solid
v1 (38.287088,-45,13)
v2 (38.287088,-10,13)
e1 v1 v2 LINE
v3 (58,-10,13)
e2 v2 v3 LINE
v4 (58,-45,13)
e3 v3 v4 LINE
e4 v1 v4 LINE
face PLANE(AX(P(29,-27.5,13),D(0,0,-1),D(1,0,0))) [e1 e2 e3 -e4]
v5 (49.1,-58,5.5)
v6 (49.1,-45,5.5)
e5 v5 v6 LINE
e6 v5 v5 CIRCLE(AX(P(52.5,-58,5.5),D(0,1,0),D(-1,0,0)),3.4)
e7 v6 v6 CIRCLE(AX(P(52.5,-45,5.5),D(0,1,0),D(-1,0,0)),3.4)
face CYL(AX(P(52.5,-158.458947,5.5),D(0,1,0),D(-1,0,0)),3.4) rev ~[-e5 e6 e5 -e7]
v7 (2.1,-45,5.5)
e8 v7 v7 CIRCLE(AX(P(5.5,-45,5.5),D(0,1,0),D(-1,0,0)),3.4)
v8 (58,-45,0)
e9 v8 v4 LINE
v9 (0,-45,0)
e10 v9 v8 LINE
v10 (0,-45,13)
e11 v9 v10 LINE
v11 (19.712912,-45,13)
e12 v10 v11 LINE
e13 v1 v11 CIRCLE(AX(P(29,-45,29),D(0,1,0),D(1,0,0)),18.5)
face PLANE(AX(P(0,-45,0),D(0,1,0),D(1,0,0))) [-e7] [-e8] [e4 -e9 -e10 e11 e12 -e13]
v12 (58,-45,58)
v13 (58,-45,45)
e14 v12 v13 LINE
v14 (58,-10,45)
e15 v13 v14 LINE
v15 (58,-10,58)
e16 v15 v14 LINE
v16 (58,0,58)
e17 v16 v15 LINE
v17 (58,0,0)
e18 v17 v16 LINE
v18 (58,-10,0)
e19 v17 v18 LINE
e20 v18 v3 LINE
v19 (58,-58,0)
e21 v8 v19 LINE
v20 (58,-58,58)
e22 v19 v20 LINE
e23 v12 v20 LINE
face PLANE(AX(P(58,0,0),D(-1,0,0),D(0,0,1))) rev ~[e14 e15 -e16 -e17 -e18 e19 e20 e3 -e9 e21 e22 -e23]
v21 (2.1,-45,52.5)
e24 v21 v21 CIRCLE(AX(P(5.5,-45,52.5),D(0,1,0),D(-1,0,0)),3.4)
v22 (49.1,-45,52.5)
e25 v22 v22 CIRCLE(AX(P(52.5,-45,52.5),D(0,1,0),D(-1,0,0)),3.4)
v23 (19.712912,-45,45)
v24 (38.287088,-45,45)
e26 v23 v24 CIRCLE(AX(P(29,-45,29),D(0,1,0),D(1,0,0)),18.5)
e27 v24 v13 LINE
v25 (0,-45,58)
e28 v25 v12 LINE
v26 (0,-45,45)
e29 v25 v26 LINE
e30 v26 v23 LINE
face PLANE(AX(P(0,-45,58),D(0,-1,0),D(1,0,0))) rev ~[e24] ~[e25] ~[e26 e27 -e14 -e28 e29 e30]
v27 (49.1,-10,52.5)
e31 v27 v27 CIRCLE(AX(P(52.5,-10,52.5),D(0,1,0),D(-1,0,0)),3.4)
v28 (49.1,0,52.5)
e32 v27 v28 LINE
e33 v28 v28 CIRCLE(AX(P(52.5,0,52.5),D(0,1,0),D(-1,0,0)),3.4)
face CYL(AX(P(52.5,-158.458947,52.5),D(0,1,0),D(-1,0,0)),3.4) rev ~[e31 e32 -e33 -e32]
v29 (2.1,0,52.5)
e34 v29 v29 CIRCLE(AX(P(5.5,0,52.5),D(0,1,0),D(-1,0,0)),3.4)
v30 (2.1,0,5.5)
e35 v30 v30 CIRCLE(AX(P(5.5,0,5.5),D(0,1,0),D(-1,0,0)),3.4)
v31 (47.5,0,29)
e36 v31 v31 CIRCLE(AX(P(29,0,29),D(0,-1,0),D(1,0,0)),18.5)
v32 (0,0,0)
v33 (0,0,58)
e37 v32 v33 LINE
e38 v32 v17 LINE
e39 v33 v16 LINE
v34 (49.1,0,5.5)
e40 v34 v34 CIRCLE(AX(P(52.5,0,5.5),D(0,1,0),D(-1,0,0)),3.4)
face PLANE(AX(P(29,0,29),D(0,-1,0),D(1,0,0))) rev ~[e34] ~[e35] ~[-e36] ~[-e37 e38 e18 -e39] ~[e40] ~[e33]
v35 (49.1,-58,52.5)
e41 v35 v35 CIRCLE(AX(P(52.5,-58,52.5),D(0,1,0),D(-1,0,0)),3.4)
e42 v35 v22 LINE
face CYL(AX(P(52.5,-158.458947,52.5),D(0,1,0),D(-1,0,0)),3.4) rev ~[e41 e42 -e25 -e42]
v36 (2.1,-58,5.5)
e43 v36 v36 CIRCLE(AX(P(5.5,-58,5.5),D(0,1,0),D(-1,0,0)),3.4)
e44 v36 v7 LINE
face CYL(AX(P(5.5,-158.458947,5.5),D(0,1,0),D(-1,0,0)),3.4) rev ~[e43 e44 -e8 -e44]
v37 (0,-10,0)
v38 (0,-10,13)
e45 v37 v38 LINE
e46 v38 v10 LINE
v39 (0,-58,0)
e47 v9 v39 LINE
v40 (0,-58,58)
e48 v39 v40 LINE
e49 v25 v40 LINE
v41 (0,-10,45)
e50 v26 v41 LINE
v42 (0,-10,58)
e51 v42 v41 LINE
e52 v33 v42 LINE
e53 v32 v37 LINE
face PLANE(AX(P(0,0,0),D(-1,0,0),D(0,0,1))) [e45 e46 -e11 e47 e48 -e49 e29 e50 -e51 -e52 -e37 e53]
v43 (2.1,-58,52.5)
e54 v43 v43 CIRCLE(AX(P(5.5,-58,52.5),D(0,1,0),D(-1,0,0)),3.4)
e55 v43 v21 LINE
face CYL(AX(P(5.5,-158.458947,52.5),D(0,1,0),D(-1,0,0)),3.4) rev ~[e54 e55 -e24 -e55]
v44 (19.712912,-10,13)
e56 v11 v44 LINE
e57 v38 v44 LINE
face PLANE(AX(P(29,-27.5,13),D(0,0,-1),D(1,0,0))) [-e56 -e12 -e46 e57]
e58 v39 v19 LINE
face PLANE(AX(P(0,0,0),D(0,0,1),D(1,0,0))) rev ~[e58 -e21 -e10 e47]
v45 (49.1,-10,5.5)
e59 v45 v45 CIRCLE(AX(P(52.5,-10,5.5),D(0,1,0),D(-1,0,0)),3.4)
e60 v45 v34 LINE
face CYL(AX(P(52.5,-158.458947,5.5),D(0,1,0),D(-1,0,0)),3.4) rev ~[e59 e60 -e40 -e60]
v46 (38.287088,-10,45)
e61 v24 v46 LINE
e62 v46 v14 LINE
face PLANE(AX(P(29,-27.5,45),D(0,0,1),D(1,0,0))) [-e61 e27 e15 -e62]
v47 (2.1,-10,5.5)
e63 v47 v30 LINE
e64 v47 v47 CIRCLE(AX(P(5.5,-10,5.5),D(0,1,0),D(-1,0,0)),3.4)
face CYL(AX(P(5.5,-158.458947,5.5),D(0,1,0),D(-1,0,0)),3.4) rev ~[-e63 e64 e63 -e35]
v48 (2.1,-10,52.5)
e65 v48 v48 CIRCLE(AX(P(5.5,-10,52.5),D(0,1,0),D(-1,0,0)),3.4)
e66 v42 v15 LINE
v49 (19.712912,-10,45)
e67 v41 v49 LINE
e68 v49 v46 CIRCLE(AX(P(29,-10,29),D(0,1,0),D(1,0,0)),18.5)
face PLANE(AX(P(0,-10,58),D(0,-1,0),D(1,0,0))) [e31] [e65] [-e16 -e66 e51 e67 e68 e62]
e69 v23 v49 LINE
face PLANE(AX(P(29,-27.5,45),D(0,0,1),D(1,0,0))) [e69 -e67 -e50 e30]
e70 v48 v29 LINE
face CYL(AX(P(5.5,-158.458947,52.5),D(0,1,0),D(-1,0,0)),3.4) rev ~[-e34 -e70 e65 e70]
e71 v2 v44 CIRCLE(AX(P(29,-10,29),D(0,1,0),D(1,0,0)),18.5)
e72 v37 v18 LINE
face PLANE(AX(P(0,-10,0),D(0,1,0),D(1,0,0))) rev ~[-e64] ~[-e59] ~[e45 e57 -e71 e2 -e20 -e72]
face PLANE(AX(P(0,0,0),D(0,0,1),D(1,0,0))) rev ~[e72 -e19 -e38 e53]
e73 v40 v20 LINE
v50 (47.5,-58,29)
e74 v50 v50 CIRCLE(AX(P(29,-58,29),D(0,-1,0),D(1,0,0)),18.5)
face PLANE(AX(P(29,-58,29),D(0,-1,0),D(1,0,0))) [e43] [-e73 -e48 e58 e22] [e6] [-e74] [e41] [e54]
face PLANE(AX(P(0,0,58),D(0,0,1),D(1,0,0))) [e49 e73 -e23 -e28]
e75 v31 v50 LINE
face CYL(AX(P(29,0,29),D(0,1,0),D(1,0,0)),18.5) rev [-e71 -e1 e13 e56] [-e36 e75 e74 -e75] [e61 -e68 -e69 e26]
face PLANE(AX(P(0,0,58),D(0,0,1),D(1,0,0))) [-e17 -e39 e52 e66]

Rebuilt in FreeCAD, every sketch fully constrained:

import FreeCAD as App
import Part
import Sketcher
from FreeCAD import Vector
Q = App.Units.Quantity


def add_polygon(sketch, points):
    """Adds a closed chain of lines whose ends are joined by coincident constraints."""
    first, n = sketch.GeometryCount, len(points)
    for a, b in zip(points, points[1:] + points[:1]):
        sketch.addGeometry(Part.LineSegment(App.Vector(*a, 0), App.Vector(*b, 0)), False)
    for i in range(n):
        sketch.addConstraint(Sketcher.Constraint("Coincident", first + i, 2, first + (i + 1) % n, 1))

doc = App.newDocument("Part")
body = doc.addObject("PartDesign::Body", "Body")

# Sketch on XZ plane
sketch1 = body.newObject("Sketcher::SketchObject", "Sketch")
sketch1.AttachmentSupport = (doc.getObject("XZ_Plane"), [""])
sketch1.MapMode = "FlatFace"
add_polygon(sketch1, [(0, 58), (0, 0), (58, 0), (58, 58)])  # lines 0-3
sketch1.addGeometry(Part.Circle(Vector(29, 29, 0), Vector(0, 0, 1), 18.5), False)  # 4
sketch1.addConstraint([
    Sketcher.Constraint("Vertical", 0),
    Sketcher.Constraint("Horizontal", 1),
    Sketcher.Constraint("Vertical", 2),
    Sketcher.Constraint("Horizontal", 3),
    Sketcher.Constraint("Coincident", 0, 2, -1, 1),
    Sketcher.Constraint("Equal", 3, 0),
    Sketcher.Constraint("Diameter", 4, Q("37 mm")),
    Sketcher.Constraint("DistanceX", 1, 1, 1, 2, Q("58 mm")),
    Sketcher.Constraint("DistanceX", -1, 1, 4, 3, Q("29 mm")),
    Sketcher.Constraint("DistanceY", -1, 1, 4, 3, Q("29 mm")),
])
pad1 = body.newObject("PartDesign::Pad", "Pad")
pad1.Profile = sketch1
pad1.Length = 58

# Sketch on XY plane
sketch2 = body.newObject("Sketcher::SketchObject", "Sketch001")
sketch2.AttachmentSupport = (doc.getObject("XY_Plane"), [""])
sketch2.MapMode = "FlatFace"
sketch2.AttachmentOffset = App.Placement(Vector(0, 0, 58), App.Rotation())
add_polygon(sketch2, [(0, -10), (0, -45), (58, -45), (58, -10)])  # lines 0-3
sketch2.addConstraint([
    Sketcher.Constraint("Vertical", 0),
    Sketcher.Constraint("Horizontal", 1),
    Sketcher.Constraint("Vertical", 2),
    Sketcher.Constraint("Horizontal", 3),
    Sketcher.Constraint("PointOnObject", 0, 2, -2),
    Sketcher.Constraint("DistanceX", 1, 1, 1, 2, Q("58 mm")),
    Sketcher.Constraint("DistanceY", 0, 2, 0, 1, Q("35 mm")),
    Sketcher.Constraint("DistanceY", 0, 2, -1, 1, Q("45 mm")),
])
pocket1 = body.newObject("PartDesign::Pocket", "Pocket")
pocket1.Profile = sketch2
pocket1.Length = 13

# Sketch on XY plane
sketch3 = body.newObject("Sketcher::SketchObject", "Sketch002")
sketch3.AttachmentSupport = (doc.getObject("XY_Plane"), [""])
sketch3.MapMode = "FlatFace"
add_polygon(sketch3, [(0, -45), (0, -10), (58, -10), (58, -45)])  # lines 0-3
sketch3.addConstraint([
    Sketcher.Constraint("Vertical", 0),
    Sketcher.Constraint("Horizontal", 1),
    Sketcher.Constraint("Vertical", 2),
    Sketcher.Constraint("Horizontal", 3),
    Sketcher.Constraint("PointOnObject", 0, 2, -2),
    Sketcher.Constraint("DistanceX", 1, 1, 1, 2, Q("58 mm")),
    Sketcher.Constraint("DistanceY", 0, 1, 0, 2, Q("35 mm")),
    Sketcher.Constraint("DistanceY", 0, 2, -1, 1, Q("10 mm")),
])
pocket2 = body.newObject("PartDesign::Pocket", "Pocket001")
pocket2.Profile = sketch3
pocket2.Length = 13
pocket2.Reversed = True

# Sketch on XZ plane
sketch4 = body.newObject("Sketcher::SketchObject", "Sketch003")
sketch4.AttachmentSupport = (doc.getObject("XZ_Plane"), [""])
sketch4.MapMode = "FlatFace"
sketch4.AttachmentOffset = App.Placement(Vector(0, 0, 58), App.Rotation())
sketch4.addGeometry([
    Part.Circle(Vector(5.5, 52.5, 0), Vector(0, 0, 1), 3.4),
    Part.Circle(Vector(52.5, 52.5, 0), Vector(0, 0, 1), 3.4),
    Part.Circle(Vector(5.5, 5.5, 0), Vector(0, 0, 1), 3.4),
    Part.Circle(Vector(52.5, 5.5, 0), Vector(0, 0, 1), 3.4),
], False)
sketch4.addConstraint([
    Sketcher.Constraint("Equal", 0, 1),
    Sketcher.Constraint("Equal", 1, 2),
    Sketcher.Constraint("Equal", 2, 3),
    Sketcher.Constraint("Horizontal", 0, 3, 1, 3),
    Sketcher.Constraint("Horizontal", 2, 3, 3, 3),
    Sketcher.Constraint("Vertical", 0, 3, 2, 3),
    Sketcher.Constraint("Vertical", 1, 3, 3, 3),
    Sketcher.Constraint("Diameter", 0, Q("6.8 mm")),
    Sketcher.Constraint("DistanceX", 0, 3, 1, 3, Q("47 mm")),
    Sketcher.Constraint("DistanceY", 2, 3, 0, 3, Q("47 mm")),
    Sketcher.Constraint("DistanceX", -1, 1, 0, 3, Q("5.5 mm")),
    Sketcher.Constraint("DistanceY", -1, 1, 0, 3, Q("52.5 mm")),
])
doc.recompute()
hole = body.newObject("PartDesign::Hole", "Hole")
hole.Profile = sketch4
hole.ThreadType = "None"
hole.Diameter = 6.8
hole.DepthType = "ThroughAll"

doc.recompute()
